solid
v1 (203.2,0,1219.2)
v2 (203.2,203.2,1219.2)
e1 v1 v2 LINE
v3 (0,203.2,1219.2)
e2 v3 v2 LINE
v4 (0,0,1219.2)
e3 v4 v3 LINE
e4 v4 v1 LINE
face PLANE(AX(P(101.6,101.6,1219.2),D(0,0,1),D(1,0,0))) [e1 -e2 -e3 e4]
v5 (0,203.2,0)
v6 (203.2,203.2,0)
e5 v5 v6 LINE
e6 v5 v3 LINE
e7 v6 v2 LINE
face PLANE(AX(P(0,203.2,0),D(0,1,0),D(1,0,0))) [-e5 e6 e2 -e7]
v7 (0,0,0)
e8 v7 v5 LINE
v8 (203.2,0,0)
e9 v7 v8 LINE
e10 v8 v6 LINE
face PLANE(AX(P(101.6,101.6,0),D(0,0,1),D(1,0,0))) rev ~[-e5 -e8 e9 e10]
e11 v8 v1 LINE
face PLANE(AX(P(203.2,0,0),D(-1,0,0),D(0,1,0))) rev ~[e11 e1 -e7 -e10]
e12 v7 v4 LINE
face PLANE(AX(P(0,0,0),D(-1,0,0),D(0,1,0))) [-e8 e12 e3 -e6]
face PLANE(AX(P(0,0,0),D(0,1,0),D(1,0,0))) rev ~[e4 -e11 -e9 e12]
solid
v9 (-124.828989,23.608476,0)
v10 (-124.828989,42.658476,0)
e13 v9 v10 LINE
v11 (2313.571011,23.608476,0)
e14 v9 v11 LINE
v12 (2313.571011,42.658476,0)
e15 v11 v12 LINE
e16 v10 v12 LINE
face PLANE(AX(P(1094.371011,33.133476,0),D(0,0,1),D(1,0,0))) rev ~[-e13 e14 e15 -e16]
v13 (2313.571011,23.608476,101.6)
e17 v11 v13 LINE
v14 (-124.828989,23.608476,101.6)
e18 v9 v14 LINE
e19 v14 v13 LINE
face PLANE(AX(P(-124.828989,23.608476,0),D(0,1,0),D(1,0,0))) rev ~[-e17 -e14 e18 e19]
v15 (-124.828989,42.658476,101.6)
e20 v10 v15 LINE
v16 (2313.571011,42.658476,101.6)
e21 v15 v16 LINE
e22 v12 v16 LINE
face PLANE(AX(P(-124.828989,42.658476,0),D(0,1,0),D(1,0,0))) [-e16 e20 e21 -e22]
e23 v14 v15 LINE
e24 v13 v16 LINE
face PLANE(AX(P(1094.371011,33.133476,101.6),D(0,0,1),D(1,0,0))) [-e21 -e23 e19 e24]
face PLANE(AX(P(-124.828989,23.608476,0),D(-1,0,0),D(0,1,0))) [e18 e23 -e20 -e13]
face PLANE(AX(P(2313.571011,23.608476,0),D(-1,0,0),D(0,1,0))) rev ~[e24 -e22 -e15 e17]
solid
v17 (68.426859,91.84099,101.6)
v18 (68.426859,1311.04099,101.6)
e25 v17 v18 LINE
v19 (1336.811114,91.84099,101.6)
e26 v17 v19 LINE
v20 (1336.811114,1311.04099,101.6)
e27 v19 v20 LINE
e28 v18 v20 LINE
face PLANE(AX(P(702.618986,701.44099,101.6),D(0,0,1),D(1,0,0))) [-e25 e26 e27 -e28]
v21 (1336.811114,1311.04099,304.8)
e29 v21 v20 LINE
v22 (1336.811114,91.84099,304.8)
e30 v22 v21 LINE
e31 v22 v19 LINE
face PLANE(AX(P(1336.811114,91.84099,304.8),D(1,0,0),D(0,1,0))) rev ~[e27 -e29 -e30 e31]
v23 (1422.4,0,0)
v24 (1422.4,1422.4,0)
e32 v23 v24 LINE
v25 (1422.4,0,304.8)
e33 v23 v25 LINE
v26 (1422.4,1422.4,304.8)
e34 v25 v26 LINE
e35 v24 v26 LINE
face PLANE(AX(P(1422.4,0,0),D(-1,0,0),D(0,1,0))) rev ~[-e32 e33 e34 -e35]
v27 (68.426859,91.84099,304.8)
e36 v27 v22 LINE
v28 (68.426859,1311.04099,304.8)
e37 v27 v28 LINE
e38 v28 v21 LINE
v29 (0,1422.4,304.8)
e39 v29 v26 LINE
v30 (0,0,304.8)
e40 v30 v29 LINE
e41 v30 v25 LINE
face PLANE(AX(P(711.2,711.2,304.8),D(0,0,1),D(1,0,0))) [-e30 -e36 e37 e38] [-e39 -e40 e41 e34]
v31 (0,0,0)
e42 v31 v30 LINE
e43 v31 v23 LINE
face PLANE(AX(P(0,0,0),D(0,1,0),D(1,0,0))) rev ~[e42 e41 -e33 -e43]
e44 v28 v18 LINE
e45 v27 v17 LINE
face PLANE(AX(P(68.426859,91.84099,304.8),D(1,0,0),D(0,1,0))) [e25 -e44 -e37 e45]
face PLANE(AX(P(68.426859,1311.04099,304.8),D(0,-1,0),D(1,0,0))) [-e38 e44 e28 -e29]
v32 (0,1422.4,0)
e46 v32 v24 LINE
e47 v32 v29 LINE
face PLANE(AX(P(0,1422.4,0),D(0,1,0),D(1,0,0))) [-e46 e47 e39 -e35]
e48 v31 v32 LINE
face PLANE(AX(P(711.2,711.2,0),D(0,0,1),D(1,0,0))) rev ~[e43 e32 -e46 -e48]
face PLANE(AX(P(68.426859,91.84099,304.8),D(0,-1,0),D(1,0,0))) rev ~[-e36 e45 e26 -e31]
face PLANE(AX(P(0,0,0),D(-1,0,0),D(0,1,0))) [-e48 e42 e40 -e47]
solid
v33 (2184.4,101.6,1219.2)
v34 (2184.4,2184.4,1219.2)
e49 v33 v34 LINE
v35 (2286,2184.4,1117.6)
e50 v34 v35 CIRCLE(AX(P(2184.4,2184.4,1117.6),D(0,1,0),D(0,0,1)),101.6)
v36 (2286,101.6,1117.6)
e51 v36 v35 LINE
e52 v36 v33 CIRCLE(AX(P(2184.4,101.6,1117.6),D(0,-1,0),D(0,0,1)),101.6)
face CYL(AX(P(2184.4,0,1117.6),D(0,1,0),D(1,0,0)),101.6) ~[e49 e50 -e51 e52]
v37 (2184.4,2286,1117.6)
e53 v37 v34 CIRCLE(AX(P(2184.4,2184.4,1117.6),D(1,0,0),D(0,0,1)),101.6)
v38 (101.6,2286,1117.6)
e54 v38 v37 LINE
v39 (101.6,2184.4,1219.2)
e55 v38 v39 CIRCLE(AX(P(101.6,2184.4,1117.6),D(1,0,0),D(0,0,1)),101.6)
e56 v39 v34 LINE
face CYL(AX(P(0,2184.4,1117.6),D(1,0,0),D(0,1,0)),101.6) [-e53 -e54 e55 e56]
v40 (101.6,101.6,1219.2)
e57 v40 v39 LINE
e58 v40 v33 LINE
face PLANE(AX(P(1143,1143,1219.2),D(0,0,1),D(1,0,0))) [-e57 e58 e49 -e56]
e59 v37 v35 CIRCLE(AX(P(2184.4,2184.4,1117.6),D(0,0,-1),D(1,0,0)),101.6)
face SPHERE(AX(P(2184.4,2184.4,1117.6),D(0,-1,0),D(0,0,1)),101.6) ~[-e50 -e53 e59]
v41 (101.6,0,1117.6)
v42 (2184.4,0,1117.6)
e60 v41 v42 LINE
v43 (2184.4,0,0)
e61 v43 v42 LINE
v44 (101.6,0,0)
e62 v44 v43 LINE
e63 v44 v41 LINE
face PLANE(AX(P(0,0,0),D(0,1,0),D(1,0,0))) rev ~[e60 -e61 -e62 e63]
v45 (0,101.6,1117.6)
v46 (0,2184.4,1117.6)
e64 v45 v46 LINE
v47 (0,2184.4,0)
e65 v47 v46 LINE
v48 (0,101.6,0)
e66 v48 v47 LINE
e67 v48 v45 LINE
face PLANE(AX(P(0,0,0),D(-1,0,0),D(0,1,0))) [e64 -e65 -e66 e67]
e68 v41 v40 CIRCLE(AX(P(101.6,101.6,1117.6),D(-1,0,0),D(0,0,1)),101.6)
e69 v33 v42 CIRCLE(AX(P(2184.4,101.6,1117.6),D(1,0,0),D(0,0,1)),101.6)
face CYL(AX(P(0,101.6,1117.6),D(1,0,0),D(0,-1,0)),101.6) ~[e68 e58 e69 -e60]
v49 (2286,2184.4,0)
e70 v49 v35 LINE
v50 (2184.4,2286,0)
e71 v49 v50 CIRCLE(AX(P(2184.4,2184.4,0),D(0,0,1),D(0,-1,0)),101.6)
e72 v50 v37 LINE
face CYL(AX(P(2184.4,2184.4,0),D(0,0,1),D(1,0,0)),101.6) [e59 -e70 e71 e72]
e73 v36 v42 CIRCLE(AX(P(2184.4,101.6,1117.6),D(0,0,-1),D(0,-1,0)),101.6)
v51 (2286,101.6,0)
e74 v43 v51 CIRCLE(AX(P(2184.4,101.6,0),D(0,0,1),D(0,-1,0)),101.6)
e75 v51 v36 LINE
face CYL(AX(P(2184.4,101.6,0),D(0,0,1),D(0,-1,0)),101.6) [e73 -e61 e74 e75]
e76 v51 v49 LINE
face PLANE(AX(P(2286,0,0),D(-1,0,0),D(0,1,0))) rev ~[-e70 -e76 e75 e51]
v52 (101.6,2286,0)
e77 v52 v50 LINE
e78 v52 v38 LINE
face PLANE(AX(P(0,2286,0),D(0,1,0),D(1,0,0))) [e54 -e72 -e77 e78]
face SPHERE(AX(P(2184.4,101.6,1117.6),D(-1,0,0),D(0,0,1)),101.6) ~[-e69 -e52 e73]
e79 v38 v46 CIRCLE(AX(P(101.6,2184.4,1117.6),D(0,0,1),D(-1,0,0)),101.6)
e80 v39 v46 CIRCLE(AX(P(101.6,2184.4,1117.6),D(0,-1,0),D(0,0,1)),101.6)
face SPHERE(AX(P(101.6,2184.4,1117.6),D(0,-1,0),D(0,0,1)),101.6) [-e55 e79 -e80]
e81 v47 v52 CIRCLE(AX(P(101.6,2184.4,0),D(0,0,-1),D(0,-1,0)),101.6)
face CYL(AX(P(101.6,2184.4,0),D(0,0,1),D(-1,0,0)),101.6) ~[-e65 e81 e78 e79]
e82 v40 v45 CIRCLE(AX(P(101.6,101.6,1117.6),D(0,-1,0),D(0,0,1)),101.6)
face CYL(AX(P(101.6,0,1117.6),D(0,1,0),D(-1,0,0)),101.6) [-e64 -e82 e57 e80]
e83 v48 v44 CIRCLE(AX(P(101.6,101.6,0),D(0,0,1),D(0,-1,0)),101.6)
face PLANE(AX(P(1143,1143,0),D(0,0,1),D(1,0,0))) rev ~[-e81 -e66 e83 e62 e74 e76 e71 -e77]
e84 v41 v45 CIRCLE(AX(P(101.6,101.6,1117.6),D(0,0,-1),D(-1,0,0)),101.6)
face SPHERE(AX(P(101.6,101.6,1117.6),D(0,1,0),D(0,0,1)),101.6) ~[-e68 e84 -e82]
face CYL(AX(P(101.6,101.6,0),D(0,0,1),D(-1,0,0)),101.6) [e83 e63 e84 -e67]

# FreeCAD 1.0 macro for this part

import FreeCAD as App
import Part
import Sketcher
from FreeCAD import Vector
Q = App.Units.Quantity


def edges_at(feature, points):
    """Names of the edges that pass closest to the given points."""
    edges = feature.Shape.Edges
    near = lambda p: min(range(len(edges)), key=lambda i: edges[i].distToShape(Part.Vertex(*p))[0])
    return sorted({f"Edge{near(p) + 1}" for p in points})

doc = App.newDocument("Part")
body = doc.addObject("PartDesign::Body", "Body")

# Sketch on XY plane
sketch1 = body.newObject("Sketcher::SketchObject", "Sketch")
sketch1.AttachmentSupport = (doc.getObject("XY_Plane"), [""])
sketch1.MapMode = "FlatFace"
sketch1.addGeometry([
    Part.LineSegment(Vector(-125, 43, 0), Vector(-125, 24, 0)),
    Part.LineSegment(Vector(-125, 24, 0), Vector(2314, 24, 0)),
    Part.LineSegment(Vector(2314, 24, 0), Vector(2314, 43, 0)),
    Part.LineSegment(Vector(2314, 43, 0), Vector(-125, 43, 0)),
], False)
sketch1.addConstraint([
    Sketcher.Constraint("Coincident", 0, 2, 1, 1),
    Sketcher.Constraint("Coincident", 1, 2, 2, 1),
    Sketcher.Constraint("Coincident", 2, 2, 3, 1),
    Sketcher.Constraint("Coincident", 3, 2, 0, 1),
    Sketcher.Constraint("Vertical", 0),
    Sketcher.Constraint("Horizontal", 1),
    Sketcher.Constraint("Vertical", 2),
    Sketcher.Constraint("Horizontal", 3),
    Sketcher.Constraint("DistanceX", 1, 1, 1, 2, Q("96 in")),
    Sketcher.Constraint("DistanceY", 0, 2, 0, 1, Q("0.75 in")),
    Sketcher.Constraint("DistanceX", 0, 2, -1, 1, Q("124.828989 mm")),
    Sketcher.Constraint("DistanceY", -1, 1, 0, 2, Q("23.608476 mm")),
])
pad1 = body.newObject("PartDesign::Pad", "Pad")
pad1.Profile = sketch1
pad1.Length = Q("4 in")
body2 = doc.addObject("PartDesign::Body", "Body001")

# Sketch on XY plane
sketch2 = body2.newObject("Sketcher::SketchObject", "Sketch001")
sketch2.AttachmentSupport = (doc.getObject("XY_Plane001"), [""])
sketch2.MapMode = "FlatFace"
sketch2.addGeometry([
    Part.LineSegment(Vector(0, 2286, 0), Vector(0, 0, 0)),
    Part.LineSegment(Vector(0, 0, 0), Vector(2286, 0, 0)),
    Part.LineSegment(Vector(2286, 0, 0), Vector(2286, 2286, 0)),
    Part.LineSegment(Vector(2286, 2286, 0), Vector(0, 2286, 0)),
], False)
sketch2.addConstraint([
    Sketcher.Constraint("Coincident", 0, 2, 1, 1),
    Sketcher.Constraint("Coincident", 1, 2, 2, 1),
    Sketcher.Constraint("Coincident", 2, 2, 3, 1),
    Sketcher.Constraint("Coincident", 3, 2, 0, 1),
    Sketcher.Constraint("Vertical", 0),
    Sketcher.Constraint("Horizontal", 1),
    Sketcher.Constraint("Vertical", 2),
    Sketcher.Constraint("Horizontal", 3),
    Sketcher.Constraint("Coincident", 0, 2, -1, 1),
    Sketcher.Constraint("Equal", 3, 0),
    Sketcher.Constraint("DistanceX", 1, 1, 1, 2, Q("90 in")),
])
pad2 = body2.newObject("PartDesign::Pad", "Pad001")
pad2.Profile = sketch2
pad2.Length = Q("48 in")
doc.recompute()

fillet = body2.newObject("PartDesign::Fillet", "Fillet")
fillet.Base = (pad2, edges_at(pad2, [
    (0, 1143, 1219.2),
    (1143, 0, 1219.2),
    (2286, 1143, 1219.2),
    (1143, 2286, 1219.2),
    (0, 0, 609.6),
    (2286, 0, 609.6),
    (0, 2286, 609.6),
    (2286, 2286, 609.6),
]))
fillet.Radius = Q("4 in")
body3 = doc.addObject("PartDesign::Body", "Body002")

# Sketch on XY plane
sketch3 = body3.newObject("Sketcher::SketchObject", "Sketch002")
sketch3.AttachmentSupport = (doc.getObject("XY_Plane002"), [""])
sketch3.MapMode = "FlatFace"
sketch3.addGeometry([
    Part.LineSegment(Vector(0, 203, 0), Vector(0, 0, 0)),
    Part.LineSegment(Vector(0, 0, 0), Vector(203, 0, 0)),
    Part.LineSegment(Vector(203, 0, 0), Vector(203, 203, 0)),
    Part.LineSegment(Vector(203, 203, 0), Vector(0, 203, 0)),
], False)
sketch3.addConstraint([
    Sketcher.Constraint("Coincident", 0, 2, 1, 1),
    Sketcher.Constraint("Coincident", 1, 2, 2, 1),
    Sketcher.Constraint("Coincident", 2, 2, 3, 1),
    Sketcher.Constraint("Coincident", 3, 2, 0, 1),
    Sketcher.Constraint("Vertical", 0),
    Sketcher.Constraint("Horizontal", 1),
    Sketcher.Constraint("Vertical", 2),
    Sketcher.Constraint("Horizontal", 3),
    Sketcher.Constraint("Coincident", 0, 2, -1, 1),
    Sketcher.Constraint("Equal", 3, 0),
    Sketcher.Constraint("DistanceX", 1, 1, 1, 2, Q("8 in")),
])
pad3 = body3.newObject("PartDesign::Pad", "Pad002")
pad3.Profile = sketch3
pad3.Length = Q("48 in")
body4 = doc.addObject("PartDesign::Body", "Body003")

# Sketch on XY plane
sketch4 = body4.newObject("Sketcher::SketchObject", "Sketch003")
sketch4.AttachmentSupport = (doc.getObject("XY_Plane003"), [""])
sketch4.MapMode = "FlatFace"
sketch4.addGeometry([
    Part.LineSegment(Vector(0, 1422, 0), Vector(0, 0, 0)),
    Part.LineSegment(Vector(0, 0, 0), Vector(1422, 0, 0)),
    Part.LineSegment(Vector(1422, 0, 0), Vector(1422, 1422, 0)),
    Part.LineSegment(Vector(1422, 1422, 0), Vector(0, 1422, 0)),
], False)
sketch4.addConstraint([
    Sketcher.Constraint("Coincident", 0, 2, 1, 1),
    Sketcher.Constraint("Coincident", 1, 2, 2, 1),
    Sketcher.Constraint("Coincident", 2, 2, 3, 1),
    Sketcher.Constraint("Coincident", 3, 2, 0, 1),
    Sketcher.Constraint("Vertical", 0),
    Sketcher.Constraint("Horizontal", 1),
    Sketcher.Constraint("Vertical", 2),
    Sketcher.Constraint("Horizontal", 3),
    Sketcher.Constraint("Coincident", 0, 2, -1, 1),
    Sketcher.Constraint("Equal", 3, 0),
    Sketcher.Constraint("DistanceX", 1, 1, 1, 2, Q("56 in")),
])
pad4 = body4.newObject("PartDesign::Pad", "Pad003")
pad4.Profile = sketch4
pad4.Length = Q("12 in")

# Sketch on XY plane
sketch5 = body4.newObject("Sketcher::SketchObject", "Sketch004")
sketch5.AttachmentSupport = (doc.getObject("XY_Plane003"), [""])
sketch5.MapMode = "FlatFace"
sketch5.AttachmentOffset = App.Placement(Vector(0, 0, 12 * 25.4), App.Rotation())
sketch5.addGeometry([
    Part.LineSegment(Vector(68, 1311, 0), Vector(68, 92, 0)),
    Part.LineSegment(Vector(68, 92, 0), Vector(1337, 92, 0)),
    Part.LineSegment(Vector(1337, 92, 0), Vector(1337, 1311, 0)),
    Part.LineSegment(Vector(1337, 1311, 0), Vector(68, 1311, 0)),
], False)
sketch5.addConstraint([
    Sketcher.Constraint("Coincident", 0, 2, 1, 1),
    Sketcher.Constraint("Coincident", 1, 2, 2, 1),
    Sketcher.Constraint("Coincident", 2, 2, 3, 1),
    Sketcher.Constraint("Coincident", 3, 2, 0, 1),
    Sketcher.Constraint("Vertical", 0),
    Sketcher.Constraint("Horizontal", 1),
    Sketcher.Constraint("Vertical", 2),
    Sketcher.Constraint("Horizontal", 3),
    Sketcher.Constraint("DistanceY", 0, 2, 0, 1, Q("48 in")),
    Sketcher.Constraint("DistanceX", 1, 1, 1, 2, Q("1268.384255 mm")),
    Sketcher.Constraint("DistanceX", -1, 1, 0, 2, Q("68.426859 mm")),
    Sketcher.Constraint("DistanceY", -1, 1, 0, 2, Q("91.84099 mm")),
])
pocket1 = body4.newObject("PartDesign::Pocket", "Pocket")
pocket1.Profile = sketch5
pocket1.Length = Q("8 in")

doc.recompute()
